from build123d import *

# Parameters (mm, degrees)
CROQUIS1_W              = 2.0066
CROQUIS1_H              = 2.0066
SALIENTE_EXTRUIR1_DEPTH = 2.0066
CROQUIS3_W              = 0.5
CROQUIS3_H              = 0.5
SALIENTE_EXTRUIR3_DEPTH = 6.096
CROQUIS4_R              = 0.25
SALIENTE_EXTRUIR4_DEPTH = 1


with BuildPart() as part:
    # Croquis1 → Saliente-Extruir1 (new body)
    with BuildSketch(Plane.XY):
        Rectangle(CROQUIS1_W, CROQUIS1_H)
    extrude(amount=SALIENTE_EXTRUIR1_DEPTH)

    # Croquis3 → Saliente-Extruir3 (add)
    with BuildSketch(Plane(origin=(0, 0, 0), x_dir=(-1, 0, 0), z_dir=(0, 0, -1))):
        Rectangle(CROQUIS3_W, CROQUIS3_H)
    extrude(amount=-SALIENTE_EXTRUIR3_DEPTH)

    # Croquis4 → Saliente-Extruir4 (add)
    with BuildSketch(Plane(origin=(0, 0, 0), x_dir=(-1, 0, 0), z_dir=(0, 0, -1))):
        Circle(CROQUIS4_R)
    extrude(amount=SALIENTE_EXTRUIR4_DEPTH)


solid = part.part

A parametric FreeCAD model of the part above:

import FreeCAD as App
import Part
import Sketcher
from FreeCAD import Vector


def add_polygon(sketch, points):
    """Adds a closed chain of lines whose ends are joined by coincident constraints."""
    first, n = sketch.GeometryCount, len(points)
    for a, b in zip(points, points[1:] + points[:1]):
        sketch.addGeometry(Part.LineSegment(App.Vector(*a, 0), App.Vector(*b, 0)), False)
    for i in range(n):
        sketch.addConstraint(Sketcher.Constraint("Coincident", first + i, 2, first + (i + 1) % n, 1))

doc = App.newDocument("Part")
body = doc.addObject("PartDesign::Body", "Body")

# Sketch on XY plane
sketch1 = body.newObject("Sketcher::SketchObject", "Sketch")
sketch1.AttachmentSupport = (doc.getObject("XY_Plane"), [""])
sketch1.MapMode = "FlatFace"
add_polygon(sketch1, [(-1, 1), (-1, -1), (1, -1), (1, 1)])  # lines 0-3
sketch1.addConstraint([
    Sketcher.Constraint("Vertical", 0),
    Sketcher.Constraint("Horizontal", 1),
    Sketcher.Constraint("Vertical", 2),
    Sketcher.Constraint("Horizontal", 3),
    Sketcher.Constraint("Symmetric", 0, 2, 2, 2, -1, 1),
    Sketcher.Constraint("Equal", 3, 0),
    Sketcher.Constraint("DistanceX", 1, 1, 1, 2, 2.0066),
])
pad1 = body.newObject("PartDesign::Pad", "Pad")
pad1.Profile = sketch1
pad1.Length = 2.0066

# Sketch on XY plane
sketch2 = body.newObject("Sketcher::SketchObject", "Sketch001")
sketch2.AttachmentSupport = (doc.getObject("XY_Plane"), [""])
sketch2.MapMode = "FlatFace"
add_polygon(sketch2, [(0.2, 0.2), (0.2, -0.2), (-0.2, -0.2), (-0.2, 0.2)])  # lines 0-3
sketch2.addConstraint([
    Sketcher.Constraint("Vertical", 0),
    Sketcher.Constraint("Horizontal", 1),
    Sketcher.Constraint("Vertical", 2),
    Sketcher.Constraint("Horizontal", 3),
    Sketcher.Constraint("Symmetric", 0, 2, 2, 2, -1, 1),
    Sketcher.Constraint("Equal", 3, 0),
    Sketcher.Constraint("DistanceX", 1, 2, 1, 1, 0.5),
])
pad2 = body.newObject("PartDesign::Pad", "Pad001")
pad2.Profile = sketch2
pad2.Length = 6.096

# Sketch on XY plane
sketch3 = body.newObject("Sketcher::SketchObject", "Sketch002")
sketch3.AttachmentSupport = (doc.getObject("XY_Plane"), [""])
sketch3.MapMode = "FlatFace"
sketch3.addGeometry(Part.Circle(Vector(0, 0, 0), Vector(0, 0, 1), 0.25), False)
sketch3.addConstraint([
    Sketcher.Constraint("Coincident", 0, 3, -1, 1),
    Sketcher.Constraint("Diameter", 0, 0.5),
])
pad3 = body.newObject("PartDesign::Pad", "Pad002")
pad3.Profile = sketch3
pad3.Length = 1
pad3.Reversed = True

doc.recompute()
